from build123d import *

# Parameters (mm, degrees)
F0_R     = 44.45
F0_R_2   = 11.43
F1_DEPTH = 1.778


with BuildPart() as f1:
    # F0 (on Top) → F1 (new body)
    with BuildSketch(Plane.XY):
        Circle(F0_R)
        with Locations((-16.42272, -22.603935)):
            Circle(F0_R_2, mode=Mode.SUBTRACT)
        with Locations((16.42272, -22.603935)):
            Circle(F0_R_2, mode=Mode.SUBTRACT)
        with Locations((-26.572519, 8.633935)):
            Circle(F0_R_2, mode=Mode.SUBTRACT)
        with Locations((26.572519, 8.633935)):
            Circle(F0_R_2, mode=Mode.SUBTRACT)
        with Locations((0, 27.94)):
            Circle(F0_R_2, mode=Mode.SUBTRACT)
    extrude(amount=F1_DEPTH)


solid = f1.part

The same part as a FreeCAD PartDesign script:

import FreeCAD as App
import Part
import Sketcher

V = App.Vector
Q = App.Units.Quantity

doc = App.newDocument("Part")
params = doc.addObject("Spreadsheet::Sheet", "Params")
for row, (alias, value) in enumerate([
    ("sketch1_diameter", "3.5 in"),
    ("sketch1_diameter2", "0.9 in"),
    ("pad1_length", "0.07 in"),
], start=1):
    params.set(f"A{row}", alias)
    params.set(f"B{row}", "=" + value)
    params.setAlias(f"B{row}", alias)

body = doc.addObject("PartDesign::Body", "Body")

# Sketch on XY plane
sketch1 = body.newObject("Sketcher::SketchObject", "Sketch")
sketch1.AttachmentSupport = (doc.getObject("XY_Plane"), [""])
sketch1.MapMode = "FlatFace"
sketch1.addGeometry(Part.Circle(V(0, 0, 0), V(0, 0, 1), 44), False)
sketch1.addGeometry(Part.Circle(V(-16, -23, 0), V(0, 0, 1), 11), False)
sketch1.addGeometry(Part.Circle(V(16, -23, 0), V(0, 0, 1), 11), False)
sketch1.addGeometry(Part.Circle(V(-27, 9, 0), V(0, 0, 1), 11), False)
sketch1.addGeometry(Part.Circle(V(0, 28, 0), V(0, 0, 1), 11), False)
sketch1.addGeometry(Part.Circle(V(27, 9, 0), V(0, 0, 1), 11), False)
sketch1.addConstraint(Sketcher.Constraint("Coincident", 0, 3, -1, 1))
sketch1.addConstraint(Sketcher.Constraint("Equal", 1, 2))
sketch1.addConstraint(Sketcher.Constraint("Equal", 2, 3))
sketch1.addConstraint(Sketcher.Constraint("Equal", 3, 4))
sketch1.addConstraint(Sketcher.Constraint("Equal", 4, 5))
sketch1.addConstraint(Sketcher.Constraint("Symmetric", 1, 3, 2, 3, -2))
sketch1.addConstraint(Sketcher.Constraint("Symmetric", 3, 3, 5, 3, -2))
sketch1.addConstraint(Sketcher.Constraint("PointOnObject", 4, 3, -2))
sketch1.addConstraint(Sketcher.Constraint("Diameter", 0, Q("3.5 in")))
sketch1.addConstraint(Sketcher.Constraint("Diameter", 1, Q("0.9 in")))
sketch1.addConstraint(Sketcher.Constraint("DistanceY", -1, 1, 4, 3, Q("1.1 in")))
sketch1.addConstraint(Sketcher.Constraint("DistanceX", 3, 3, 1, 3, Q("10.149799 mm")))
sketch1.addConstraint(Sketcher.Constraint("DistanceX", 1, 3, -1, 1, Q("16.42272 mm")))
sketch1.addConstraint(Sketcher.Constraint("DistanceY", 1, 3, 3, 3, Q("31.23787 mm")))
sketch1.addConstraint(Sketcher.Constraint("DistanceY", 1, 3, -1, 1, Q("22.603935 mm")))
sketch1.setExpression("Constraints[8]", "Params.sketch1_diameter")
sketch1.setExpression("Constraints[9]", "Params.sketch1_diameter2")
pad1 = body.newObject("PartDesign::Pad", "Pad")
pad1.Profile = sketch1
pad1.setExpression("Length", "Params.pad1_length")

doc.recompute()
